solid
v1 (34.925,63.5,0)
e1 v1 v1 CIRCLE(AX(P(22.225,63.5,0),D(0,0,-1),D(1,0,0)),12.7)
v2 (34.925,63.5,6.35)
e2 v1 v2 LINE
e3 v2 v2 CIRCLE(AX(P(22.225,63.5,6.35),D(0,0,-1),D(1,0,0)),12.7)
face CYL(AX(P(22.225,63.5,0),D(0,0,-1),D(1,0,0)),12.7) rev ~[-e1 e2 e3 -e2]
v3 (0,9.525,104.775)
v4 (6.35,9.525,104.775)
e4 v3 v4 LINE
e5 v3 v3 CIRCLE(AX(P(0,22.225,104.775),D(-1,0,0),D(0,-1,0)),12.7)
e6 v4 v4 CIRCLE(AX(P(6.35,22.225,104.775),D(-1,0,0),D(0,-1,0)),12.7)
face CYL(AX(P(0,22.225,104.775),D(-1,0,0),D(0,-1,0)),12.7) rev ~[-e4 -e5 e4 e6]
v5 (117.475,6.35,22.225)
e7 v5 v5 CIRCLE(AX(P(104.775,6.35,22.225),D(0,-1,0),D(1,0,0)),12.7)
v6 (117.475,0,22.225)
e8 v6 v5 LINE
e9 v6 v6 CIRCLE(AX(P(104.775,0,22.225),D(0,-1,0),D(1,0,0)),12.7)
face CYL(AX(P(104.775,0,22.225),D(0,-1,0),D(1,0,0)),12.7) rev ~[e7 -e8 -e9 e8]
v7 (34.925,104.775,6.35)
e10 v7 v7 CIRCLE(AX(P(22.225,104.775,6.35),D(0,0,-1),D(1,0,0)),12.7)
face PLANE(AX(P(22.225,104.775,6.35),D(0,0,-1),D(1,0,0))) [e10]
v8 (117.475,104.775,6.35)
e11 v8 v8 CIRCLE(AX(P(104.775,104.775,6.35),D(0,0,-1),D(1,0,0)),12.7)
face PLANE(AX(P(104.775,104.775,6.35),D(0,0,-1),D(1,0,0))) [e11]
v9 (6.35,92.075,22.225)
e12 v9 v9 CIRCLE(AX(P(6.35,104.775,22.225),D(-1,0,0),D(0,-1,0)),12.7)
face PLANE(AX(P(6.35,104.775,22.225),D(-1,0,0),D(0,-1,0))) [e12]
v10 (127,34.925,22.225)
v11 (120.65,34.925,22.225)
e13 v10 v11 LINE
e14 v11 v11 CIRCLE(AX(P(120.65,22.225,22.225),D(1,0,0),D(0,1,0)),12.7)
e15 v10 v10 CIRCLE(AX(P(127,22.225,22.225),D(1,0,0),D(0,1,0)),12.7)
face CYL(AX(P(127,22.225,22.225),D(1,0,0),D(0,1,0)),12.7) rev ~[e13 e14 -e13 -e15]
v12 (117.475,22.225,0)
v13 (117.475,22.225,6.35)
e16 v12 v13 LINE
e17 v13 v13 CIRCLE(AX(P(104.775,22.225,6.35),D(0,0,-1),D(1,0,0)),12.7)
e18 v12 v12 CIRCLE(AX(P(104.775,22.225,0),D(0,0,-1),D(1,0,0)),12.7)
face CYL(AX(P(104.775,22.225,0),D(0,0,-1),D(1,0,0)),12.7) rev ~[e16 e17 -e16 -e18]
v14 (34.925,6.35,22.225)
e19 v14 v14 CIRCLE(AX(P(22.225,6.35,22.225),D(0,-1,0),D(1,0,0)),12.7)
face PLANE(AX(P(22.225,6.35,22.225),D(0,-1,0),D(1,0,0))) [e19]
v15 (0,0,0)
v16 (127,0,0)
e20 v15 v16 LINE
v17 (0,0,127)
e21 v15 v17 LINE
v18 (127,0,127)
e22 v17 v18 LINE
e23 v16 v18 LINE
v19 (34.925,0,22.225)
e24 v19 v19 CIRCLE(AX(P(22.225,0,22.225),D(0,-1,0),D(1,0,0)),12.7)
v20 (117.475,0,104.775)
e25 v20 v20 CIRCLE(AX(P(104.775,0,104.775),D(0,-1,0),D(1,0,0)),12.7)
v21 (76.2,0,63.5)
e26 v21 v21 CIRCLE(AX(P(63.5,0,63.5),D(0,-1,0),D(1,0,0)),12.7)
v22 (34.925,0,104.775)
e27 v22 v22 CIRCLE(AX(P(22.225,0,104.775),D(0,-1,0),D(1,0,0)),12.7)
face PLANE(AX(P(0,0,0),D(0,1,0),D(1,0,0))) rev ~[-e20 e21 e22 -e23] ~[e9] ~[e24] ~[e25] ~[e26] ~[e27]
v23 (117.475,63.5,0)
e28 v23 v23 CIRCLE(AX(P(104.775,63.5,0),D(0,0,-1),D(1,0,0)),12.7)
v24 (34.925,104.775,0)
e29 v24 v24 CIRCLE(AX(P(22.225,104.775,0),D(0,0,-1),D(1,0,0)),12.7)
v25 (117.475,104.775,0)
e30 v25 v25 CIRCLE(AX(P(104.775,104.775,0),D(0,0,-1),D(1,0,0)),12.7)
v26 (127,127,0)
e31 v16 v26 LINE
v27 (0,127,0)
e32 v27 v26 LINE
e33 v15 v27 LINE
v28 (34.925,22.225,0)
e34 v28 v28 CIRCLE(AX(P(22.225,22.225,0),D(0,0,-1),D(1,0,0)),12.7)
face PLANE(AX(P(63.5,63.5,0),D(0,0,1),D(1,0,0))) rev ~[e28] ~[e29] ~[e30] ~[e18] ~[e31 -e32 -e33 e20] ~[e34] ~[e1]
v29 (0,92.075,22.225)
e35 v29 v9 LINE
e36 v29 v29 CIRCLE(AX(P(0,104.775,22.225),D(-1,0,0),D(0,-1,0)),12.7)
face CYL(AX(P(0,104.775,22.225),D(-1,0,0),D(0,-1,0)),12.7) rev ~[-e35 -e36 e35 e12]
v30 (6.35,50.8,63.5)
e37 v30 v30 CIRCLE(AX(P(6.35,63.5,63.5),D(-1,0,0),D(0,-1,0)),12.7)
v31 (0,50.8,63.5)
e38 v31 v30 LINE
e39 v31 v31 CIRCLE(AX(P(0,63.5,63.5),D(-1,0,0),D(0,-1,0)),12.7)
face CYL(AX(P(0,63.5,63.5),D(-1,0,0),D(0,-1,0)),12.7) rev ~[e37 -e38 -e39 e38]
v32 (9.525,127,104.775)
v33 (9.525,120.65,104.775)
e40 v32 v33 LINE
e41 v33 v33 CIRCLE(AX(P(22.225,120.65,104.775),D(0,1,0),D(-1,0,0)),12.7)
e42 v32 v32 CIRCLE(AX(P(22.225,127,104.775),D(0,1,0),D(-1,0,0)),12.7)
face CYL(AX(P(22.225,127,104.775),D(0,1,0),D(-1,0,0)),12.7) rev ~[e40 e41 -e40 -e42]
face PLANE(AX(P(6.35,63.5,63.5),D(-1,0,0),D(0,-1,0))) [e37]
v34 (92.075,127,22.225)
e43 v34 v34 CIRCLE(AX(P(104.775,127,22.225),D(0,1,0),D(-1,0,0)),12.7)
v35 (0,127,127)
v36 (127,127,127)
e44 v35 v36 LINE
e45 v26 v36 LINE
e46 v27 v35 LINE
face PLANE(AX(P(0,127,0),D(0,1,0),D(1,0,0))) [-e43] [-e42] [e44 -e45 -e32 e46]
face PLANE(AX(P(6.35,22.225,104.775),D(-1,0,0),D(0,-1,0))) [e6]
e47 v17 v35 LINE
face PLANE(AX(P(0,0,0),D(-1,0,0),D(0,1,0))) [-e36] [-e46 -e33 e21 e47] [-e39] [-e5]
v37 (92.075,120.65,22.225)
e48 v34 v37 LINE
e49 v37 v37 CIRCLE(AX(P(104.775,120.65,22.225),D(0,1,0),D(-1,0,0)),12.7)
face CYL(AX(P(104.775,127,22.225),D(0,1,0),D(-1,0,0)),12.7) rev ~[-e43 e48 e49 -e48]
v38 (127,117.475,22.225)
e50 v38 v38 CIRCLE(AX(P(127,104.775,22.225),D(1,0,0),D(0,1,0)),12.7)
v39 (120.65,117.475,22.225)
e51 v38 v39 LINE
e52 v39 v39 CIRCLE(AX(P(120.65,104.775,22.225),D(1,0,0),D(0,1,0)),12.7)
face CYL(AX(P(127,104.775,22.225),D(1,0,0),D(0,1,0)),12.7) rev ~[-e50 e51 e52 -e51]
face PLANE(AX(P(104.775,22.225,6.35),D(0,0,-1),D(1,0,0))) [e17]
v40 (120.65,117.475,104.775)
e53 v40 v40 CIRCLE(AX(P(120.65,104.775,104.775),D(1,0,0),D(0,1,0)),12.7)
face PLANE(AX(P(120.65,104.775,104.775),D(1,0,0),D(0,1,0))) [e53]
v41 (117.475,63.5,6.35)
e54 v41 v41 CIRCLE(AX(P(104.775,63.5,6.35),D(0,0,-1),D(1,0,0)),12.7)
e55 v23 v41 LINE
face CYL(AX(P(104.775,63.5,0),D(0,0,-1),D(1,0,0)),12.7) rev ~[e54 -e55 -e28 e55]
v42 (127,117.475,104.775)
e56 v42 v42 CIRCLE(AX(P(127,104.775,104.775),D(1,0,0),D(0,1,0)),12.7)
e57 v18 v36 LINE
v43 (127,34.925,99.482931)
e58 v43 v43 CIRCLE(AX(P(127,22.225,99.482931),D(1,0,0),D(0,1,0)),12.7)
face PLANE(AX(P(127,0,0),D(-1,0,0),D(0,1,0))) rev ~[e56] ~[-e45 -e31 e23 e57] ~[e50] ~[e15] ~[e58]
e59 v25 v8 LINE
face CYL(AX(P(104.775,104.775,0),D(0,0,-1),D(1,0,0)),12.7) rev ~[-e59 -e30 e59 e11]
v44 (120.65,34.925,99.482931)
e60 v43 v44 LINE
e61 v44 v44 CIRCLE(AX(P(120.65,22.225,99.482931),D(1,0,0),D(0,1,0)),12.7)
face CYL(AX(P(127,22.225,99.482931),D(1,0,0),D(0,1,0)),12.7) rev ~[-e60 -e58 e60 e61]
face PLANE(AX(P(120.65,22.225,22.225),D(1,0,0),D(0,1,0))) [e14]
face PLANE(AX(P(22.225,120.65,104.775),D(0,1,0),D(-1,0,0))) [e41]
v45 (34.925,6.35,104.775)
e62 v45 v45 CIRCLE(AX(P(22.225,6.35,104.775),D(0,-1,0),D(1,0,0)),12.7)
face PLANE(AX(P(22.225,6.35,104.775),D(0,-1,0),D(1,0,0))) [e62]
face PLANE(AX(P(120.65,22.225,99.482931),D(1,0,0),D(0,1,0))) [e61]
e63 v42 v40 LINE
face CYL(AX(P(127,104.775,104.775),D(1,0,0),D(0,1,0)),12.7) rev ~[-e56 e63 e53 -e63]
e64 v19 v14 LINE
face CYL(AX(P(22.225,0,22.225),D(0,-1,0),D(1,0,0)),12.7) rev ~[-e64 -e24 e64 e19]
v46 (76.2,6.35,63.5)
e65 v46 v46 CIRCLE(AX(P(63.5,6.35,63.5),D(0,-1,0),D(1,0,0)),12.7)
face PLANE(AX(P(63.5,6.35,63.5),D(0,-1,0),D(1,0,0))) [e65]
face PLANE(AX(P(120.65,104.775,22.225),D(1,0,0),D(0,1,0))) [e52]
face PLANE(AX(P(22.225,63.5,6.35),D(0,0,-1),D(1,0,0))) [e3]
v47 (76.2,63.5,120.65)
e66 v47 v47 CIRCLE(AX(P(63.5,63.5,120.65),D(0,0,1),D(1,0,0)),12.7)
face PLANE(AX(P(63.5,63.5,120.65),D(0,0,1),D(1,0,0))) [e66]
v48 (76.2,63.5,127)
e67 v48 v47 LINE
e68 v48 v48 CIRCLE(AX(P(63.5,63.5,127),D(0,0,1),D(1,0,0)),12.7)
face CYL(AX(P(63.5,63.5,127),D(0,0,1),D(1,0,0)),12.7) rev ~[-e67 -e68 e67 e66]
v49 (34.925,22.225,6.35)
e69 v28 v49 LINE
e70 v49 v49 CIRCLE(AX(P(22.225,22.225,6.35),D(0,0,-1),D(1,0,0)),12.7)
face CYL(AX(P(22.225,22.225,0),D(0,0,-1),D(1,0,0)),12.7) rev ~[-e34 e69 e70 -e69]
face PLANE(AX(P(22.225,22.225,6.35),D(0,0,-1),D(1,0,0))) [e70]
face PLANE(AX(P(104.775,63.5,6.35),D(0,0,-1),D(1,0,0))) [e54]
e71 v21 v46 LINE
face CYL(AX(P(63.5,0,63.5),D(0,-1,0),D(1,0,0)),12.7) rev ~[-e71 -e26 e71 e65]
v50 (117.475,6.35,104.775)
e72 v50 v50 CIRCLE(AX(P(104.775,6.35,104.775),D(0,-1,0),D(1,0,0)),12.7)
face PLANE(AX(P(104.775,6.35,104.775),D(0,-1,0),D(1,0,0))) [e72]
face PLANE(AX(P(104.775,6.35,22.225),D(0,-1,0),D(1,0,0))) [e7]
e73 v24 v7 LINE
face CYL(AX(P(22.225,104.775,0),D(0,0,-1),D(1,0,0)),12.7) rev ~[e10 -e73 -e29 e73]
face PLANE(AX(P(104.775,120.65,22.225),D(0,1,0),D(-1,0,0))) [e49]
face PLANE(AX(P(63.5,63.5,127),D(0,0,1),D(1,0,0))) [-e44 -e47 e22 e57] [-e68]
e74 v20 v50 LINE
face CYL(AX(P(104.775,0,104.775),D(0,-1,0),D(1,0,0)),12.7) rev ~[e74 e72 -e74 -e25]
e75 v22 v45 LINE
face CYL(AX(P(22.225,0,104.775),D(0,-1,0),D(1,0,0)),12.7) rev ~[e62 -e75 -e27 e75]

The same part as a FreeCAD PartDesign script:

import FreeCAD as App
import Part
import Sketcher

V = App.Vector
Q = App.Units.Quantity

doc = App.newDocument("Part")
params = doc.addObject("Spreadsheet::Sheet", "Params")
for row, (alias, value) in enumerate([
    ("sketch1_width", "5 in"),
    ("pad1_length", "5 in"),
    ("sketch2_diameter", "1 in"),
    ("pocket1_length", "0.25 in"),
    ("sketch3_diameter", "1 in"),
    ("pocket2_length", "0.25 in"),
    ("sketch4_diameter", "1 in"),
    ("pocket3_length", "0.25 in"),
    ("sketch5_diameter", "1 in"),
    ("pocket4_length", "0.25 in"),
    ("sketch6_diameter", "1 in"),
    ("pocket5_length", "0.25 in"),
    ("sketch7_diameter", "1 in"),
    ("pocket6_length", "0.25 in"),
], start=1):
    params.set(f"A{row}", alias)
    params.set(f"B{row}", "=" + value)
    params.setAlias(f"B{row}", alias)

body = doc.addObject("PartDesign::Body", "Body")

sketch1 = body.newObject("Sketcher::SketchObject", "Sketch")
sketch1.AttachmentSupport = (doc.getObject("XY_Plane"), [""])
sketch1.MapMode = "FlatFace"
sketch1.addGeometry([
    Part.LineSegment(V(0, 127, 0), V(0, 0, 0)),
    Part.LineSegment(V(0, 0, 0), V(127, 0, 0)),
    Part.LineSegment(V(127, 0, 0), V(127, 127, 0)),
    Part.LineSegment(V(127, 127, 0), V(0, 127, 0)),
], False)
sketch1.addConstraint([
    Sketcher.Constraint("Coincident", 0, 2, 1, 1),
    Sketcher.Constraint("Coincident", 1, 2, 2, 1),
    Sketcher.Constraint("Coincident", 2, 2, 3, 1),
    Sketcher.Constraint("Coincident", 3, 2, 0, 1),
    Sketcher.Constraint("Vertical", 0),
    Sketcher.Constraint("Horizontal", 1),
    Sketcher.Constraint("Vertical", 2),
    Sketcher.Constraint("Horizontal", 3),
    Sketcher.Constraint("Coincident", 0, 2, -1, 1),
    Sketcher.Constraint("Equal", 3, 0),
    Sketcher.Constraint("DistanceX", 1, 1, 1, 2, Q("5 in")),
])
sketch1.setExpression("Constraints[10]", "Params.sketch1_width")
pad1 = body.newObject("PartDesign::Pad", "Pad")
pad1.Profile = sketch1
pad1.setExpression("Length", "Params.pad1_length")

sketch2 = body.newObject("Sketcher::SketchObject", "Sketch001")
sketch2.AttachmentSupport = (doc.getObject("XY_Plane"), [""])
sketch2.MapMode = "FlatFace"
sketch2.AttachmentOffset = App.Placement(V(0, 0, 5 * 25.4), App.Rotation())
sketch2.addGeometry(Part.Circle(V(64, 64, 0), V(0, 0, 1), 13), False)
sketch2.addConstraint([
    Sketcher.Constraint("Diameter", 0, Q("1 in")),
    Sketcher.Constraint("DistanceX", -1, 1, 0, 3, Q("2.5 in")),
    Sketcher.Constraint("DistanceY", -1, 1, 0, 3, Q("2.5 in")),
])
sketch2.setExpression("Constraints[0]", "Params.sketch2_diameter")
pocket1 = body.newObject("PartDesign::Pocket", "Pocket")
pocket1.Profile = sketch2
pocket1.setExpression("Length", "Params.pocket1_length")

sketch3 = body.newObject("Sketcher::SketchObject", "Sketch002")
sketch3.AttachmentSupport = (doc.getObject("XZ_Plane"), [""])
sketch3.MapMode = "FlatFace"
sketch3.AttachmentOffset = App.Placement(V(0, 0, -5 * 25.4), App.Rotation())
sketch3.addGeometry([
    Part.Circle(V(105, 22, 0), V(0, 0, 1), 13),
    Part.Circle(V(22, 105, 0), V(0, 0, 1), 13),
], False)
sketch3.addConstraint([
    Sketcher.Constraint("Equal", 0, 1),
    Sketcher.Constraint("Diameter", 0, Q("1 in")),
    Sketcher.Constraint("DistanceX", 1, 3, 0, 3, Q("3.25 in")),
    Sketcher.Constraint("DistanceY", 0, 3, 1, 3, Q("3.25 in")),
    Sketcher.Constraint("DistanceX", -1, 1, 0, 3, Q("4.125 in")),
    Sketcher.Constraint("DistanceY", -1, 1, 0, 3, Q("0.875 in")),
])
sketch3.setExpression("Constraints[1]", "Params.sketch3_diameter")
pocket2 = body.newObject("PartDesign::Pocket", "Pocket001")
pocket2.Profile = sketch3
pocket2.setExpression("Length", "Params.pocket2_length")
pocket2.Reversed = True

sketch4 = body.newObject("Sketcher::SketchObject", "Sketch003")
sketch4.AttachmentSupport = (doc.getObject("YZ_Plane"), [""])
sketch4.MapMode = "FlatFace"
sketch4.addGeometry([
    Part.Circle(V(105, 22, 0), V(0, 0, 1), 13),
    Part.Circle(V(64, 64, 0), V(0, 0, 1), 13),
    Part.Circle(V(22, 105, 0), V(0, 0, 1), 13),
], False)
sketch4.addConstraint([
    Sketcher.Constraint("Equal", 0, 1),
    Sketcher.Constraint("Equal", 1, 2),
    Sketcher.Constraint("Diameter", 0, Q("1 in")),
    Sketcher.Constraint("DistanceX", -1, 1, 1, 3, Q("2.5 in")),
    Sketcher.Constraint("DistanceY", -1, 1, 1, 3, Q("2.5 in")),
    Sketcher.Constraint("DistanceX", 2, 3, 0, 3, Q("3.25 in")),
    Sketcher.Constraint("DistanceY", 0, 3, 2, 3, Q("3.25 in")),
    Sketcher.Constraint("DistanceX", -1, 1, 0, 3, Q("4.125 in")),
    Sketcher.Constraint("DistanceY", -1, 1, 0, 3, Q("0.875 in")),
])
sketch4.setExpression("Constraints[2]", "Params.sketch4_diameter")
pocket3 = body.newObject("PartDesign::Pocket", "Pocket002")
pocket3.Profile = sketch4
pocket3.setExpression("Length", "Params.pocket3_length")
pocket3.Reversed = True

sketch5 = body.newObject("Sketcher::SketchObject", "Sketch004")
sketch5.AttachmentSupport = (doc.getObject("YZ_Plane"), [""])
sketch5.MapMode = "FlatFace"
sketch5.AttachmentOffset = App.Placement(V(0, 0, 5 * 25.4), App.Rotation())
sketch5.addGeometry([
    Part.Circle(V(22, 99, 0), V(0, 0, 1), 13),
    Part.Circle(V(105, 105, 0), V(0, 0, 1), 13),
    Part.Circle(V(105, 22, 0), V(0, 0, 1), 13),
    Part.Circle(V(22, 22, 0), V(0, 0, 1), 13),
], False)
sketch5.addConstraint([
    Sketcher.Constraint("Equal", 0, 1),
    Sketcher.Constraint("Equal", 1, 2),
    Sketcher.Constraint("Equal", 2, 3),
    Sketcher.Constraint("Horizontal", 2, 3, 3, 3),
    Sketcher.Constraint("Vertical", 1, 3, 2, 3),
    Sketcher.Constraint("Vertical", 0, 3, 3, 3),
    Sketcher.Constraint("Diameter", 0, Q("1 in")),
    Sketcher.Constraint("DistanceX", 0, 3, 1, 3, Q("3.25 in")),
    Sketcher.Constraint("DistanceY", 2, 3, 1, 3, Q("3.25 in")),
    Sketcher.Constraint("DistanceX", -1, 1, 0, 3, Q("0.875 in")),
    Sketcher.Constraint("DistanceY", -1, 1, 1, 3, Q("4.125 in")),
    Sketcher.Constraint("DistanceY", -1, 1, 0, 3, 99.482931),
])
sketch5.setExpression("Constraints[6]", "Params.sketch5_diameter")
pocket4 = body.newObject("PartDesign::Pocket", "Pocket003")
pocket4.Profile = sketch5
pocket4.setExpression("Length", "Params.pocket4_length")

sketch6 = body.newObject("Sketcher::SketchObject", "Sketch005")
sketch6.AttachmentSupport = (doc.getObject("XZ_Plane"), [""])
sketch6.MapMode = "FlatFace"
sketch6.addGeometry([
    Part.Circle(V(105, 105, 0), V(0, 0, 1), 13),
    Part.Circle(V(105, 22, 0), V(0, 0, 1), 13),
    Part.Circle(V(22, 22, 0), V(0, 0, 1), 13),
    Part.Circle(V(64, 64, 0), V(0, 0, 1), 13),
    Part.Circle(V(22, 105, 0), V(0, 0, 1), 13),
], False)
sketch6.addConstraint([
    Sketcher.Constraint("Equal", 0, 1),
    Sketcher.Constraint("Equal", 1, 2),
    Sketcher.Constraint("Equal", 2, 3),
    Sketcher.Constraint("Equal", 3, 4),
    Sketcher.Constraint("Horizontal", 1, 3, 2, 3),
    Sketcher.Constraint("Horizontal", 0, 3, 4, 3),
    Sketcher.Constraint("Vertical", 0, 3, 1, 3),
    Sketcher.Constraint("Vertical", 2, 3, 4, 3),
    Sketcher.Constraint("Diameter", 0, Q("1 in")),
    Sketcher.Constraint("DistanceX", -1, 1, 3, 3, Q("2.5 in")),
    Sketcher.Constraint("DistanceY", -1, 1, 3, 3, Q("2.5 in")),
    Sketcher.Constraint("DistanceY", 1, 3, 0, 3, Q("3.25 in")),
    Sketcher.Constraint("DistanceX", 2, 3, 1, 3, Q("3.25 in")),
    Sketcher.Constraint("DistanceX", -1, 1, 0, 3, Q("4.125 in")),
    Sketcher.Constraint("DistanceY", -1, 1, 0, 3, Q("4.125 in")),
])
sketch6.setExpression("Constraints[8]", "Params.sketch6_diameter")
pocket5 = body.newObject("PartDesign::Pocket", "Pocket004")
pocket5.Profile = sketch6
pocket5.setExpression("Length", "Params.pocket5_length")

sketch7 = body.newObject("Sketcher::SketchObject", "Sketch006")
sketch7.AttachmentSupport = (doc.getObject("XY_Plane"), [""])
sketch7.MapMode = "FlatFace"
sketch7.addGeometry([
    Part.Circle(V(22, 22, 0), V(0, 0, 1), 13),
    Part.Circle(V(22, 64, 0), V(0, 0, 1), 13),
    Part.Circle(V(22, 105, 0), V(0, 0, 1), 13),
    Part.Circle(V(105, 22, 0), V(0, 0, 1), 13),
    Part.Circle(V(105, 64, 0), V(0, 0, 1), 13),
    Part.Circle(V(105, 105, 0), V(0, 0, 1), 13),
], False)
sketch7.addConstraint([
    Sketcher.Constraint("Equal", 0, 1),
    Sketcher.Constraint("Equal", 1, 2),
    Sketcher.Constraint("Equal", 2, 3),
    Sketcher.Constraint("Equal", 3, 4),
    Sketcher.Constraint("Equal", 4, 5),
    Sketcher.Constraint("Horizontal", 0, 3, 3, 3),
    Sketcher.Constraint("Horizontal", 1, 3, 4, 3),
    Sketcher.Constraint("Horizontal", 2, 3, 5, 3),
    Sketcher.Constraint("Vertical", 0, 3, 1, 3),
    Sketcher.Constraint("Vertical", 1, 3, 2, 3),
    Sketcher.Constraint("Vertical", 3, 3, 4, 3),
    Sketcher.Constraint("Vertical", 4, 3, 5, 3),
    Sketcher.Constraint("Diameter", 0, Q("1 in")),
    Sketcher.Constraint("DistanceY", -1, 1, 1, 3, Q("2.5 in")),
    Sketcher.Constraint("DistanceY", 0, 3, 2, 3, Q("3.25 in")),
    Sketcher.Constraint("DistanceX", 0, 3, 3, 3, Q("3.25 in")),
    Sketcher.Constraint("DistanceX", -1, 1, 0, 3, Q("0.875 in")),
    Sketcher.Constraint("DistanceY", -1, 1, 0, 3, Q("0.875 in")),
])
sketch7.setExpression("Constraints[12]", "Params.sketch7_diameter")
pocket6 = body.newObject("PartDesign::Pocket", "Pocket005")
pocket6.Profile = sketch7
pocket6.setExpression("Length", "Params.pocket6_length")
pocket6.Reversed = True

doc.recompute()
